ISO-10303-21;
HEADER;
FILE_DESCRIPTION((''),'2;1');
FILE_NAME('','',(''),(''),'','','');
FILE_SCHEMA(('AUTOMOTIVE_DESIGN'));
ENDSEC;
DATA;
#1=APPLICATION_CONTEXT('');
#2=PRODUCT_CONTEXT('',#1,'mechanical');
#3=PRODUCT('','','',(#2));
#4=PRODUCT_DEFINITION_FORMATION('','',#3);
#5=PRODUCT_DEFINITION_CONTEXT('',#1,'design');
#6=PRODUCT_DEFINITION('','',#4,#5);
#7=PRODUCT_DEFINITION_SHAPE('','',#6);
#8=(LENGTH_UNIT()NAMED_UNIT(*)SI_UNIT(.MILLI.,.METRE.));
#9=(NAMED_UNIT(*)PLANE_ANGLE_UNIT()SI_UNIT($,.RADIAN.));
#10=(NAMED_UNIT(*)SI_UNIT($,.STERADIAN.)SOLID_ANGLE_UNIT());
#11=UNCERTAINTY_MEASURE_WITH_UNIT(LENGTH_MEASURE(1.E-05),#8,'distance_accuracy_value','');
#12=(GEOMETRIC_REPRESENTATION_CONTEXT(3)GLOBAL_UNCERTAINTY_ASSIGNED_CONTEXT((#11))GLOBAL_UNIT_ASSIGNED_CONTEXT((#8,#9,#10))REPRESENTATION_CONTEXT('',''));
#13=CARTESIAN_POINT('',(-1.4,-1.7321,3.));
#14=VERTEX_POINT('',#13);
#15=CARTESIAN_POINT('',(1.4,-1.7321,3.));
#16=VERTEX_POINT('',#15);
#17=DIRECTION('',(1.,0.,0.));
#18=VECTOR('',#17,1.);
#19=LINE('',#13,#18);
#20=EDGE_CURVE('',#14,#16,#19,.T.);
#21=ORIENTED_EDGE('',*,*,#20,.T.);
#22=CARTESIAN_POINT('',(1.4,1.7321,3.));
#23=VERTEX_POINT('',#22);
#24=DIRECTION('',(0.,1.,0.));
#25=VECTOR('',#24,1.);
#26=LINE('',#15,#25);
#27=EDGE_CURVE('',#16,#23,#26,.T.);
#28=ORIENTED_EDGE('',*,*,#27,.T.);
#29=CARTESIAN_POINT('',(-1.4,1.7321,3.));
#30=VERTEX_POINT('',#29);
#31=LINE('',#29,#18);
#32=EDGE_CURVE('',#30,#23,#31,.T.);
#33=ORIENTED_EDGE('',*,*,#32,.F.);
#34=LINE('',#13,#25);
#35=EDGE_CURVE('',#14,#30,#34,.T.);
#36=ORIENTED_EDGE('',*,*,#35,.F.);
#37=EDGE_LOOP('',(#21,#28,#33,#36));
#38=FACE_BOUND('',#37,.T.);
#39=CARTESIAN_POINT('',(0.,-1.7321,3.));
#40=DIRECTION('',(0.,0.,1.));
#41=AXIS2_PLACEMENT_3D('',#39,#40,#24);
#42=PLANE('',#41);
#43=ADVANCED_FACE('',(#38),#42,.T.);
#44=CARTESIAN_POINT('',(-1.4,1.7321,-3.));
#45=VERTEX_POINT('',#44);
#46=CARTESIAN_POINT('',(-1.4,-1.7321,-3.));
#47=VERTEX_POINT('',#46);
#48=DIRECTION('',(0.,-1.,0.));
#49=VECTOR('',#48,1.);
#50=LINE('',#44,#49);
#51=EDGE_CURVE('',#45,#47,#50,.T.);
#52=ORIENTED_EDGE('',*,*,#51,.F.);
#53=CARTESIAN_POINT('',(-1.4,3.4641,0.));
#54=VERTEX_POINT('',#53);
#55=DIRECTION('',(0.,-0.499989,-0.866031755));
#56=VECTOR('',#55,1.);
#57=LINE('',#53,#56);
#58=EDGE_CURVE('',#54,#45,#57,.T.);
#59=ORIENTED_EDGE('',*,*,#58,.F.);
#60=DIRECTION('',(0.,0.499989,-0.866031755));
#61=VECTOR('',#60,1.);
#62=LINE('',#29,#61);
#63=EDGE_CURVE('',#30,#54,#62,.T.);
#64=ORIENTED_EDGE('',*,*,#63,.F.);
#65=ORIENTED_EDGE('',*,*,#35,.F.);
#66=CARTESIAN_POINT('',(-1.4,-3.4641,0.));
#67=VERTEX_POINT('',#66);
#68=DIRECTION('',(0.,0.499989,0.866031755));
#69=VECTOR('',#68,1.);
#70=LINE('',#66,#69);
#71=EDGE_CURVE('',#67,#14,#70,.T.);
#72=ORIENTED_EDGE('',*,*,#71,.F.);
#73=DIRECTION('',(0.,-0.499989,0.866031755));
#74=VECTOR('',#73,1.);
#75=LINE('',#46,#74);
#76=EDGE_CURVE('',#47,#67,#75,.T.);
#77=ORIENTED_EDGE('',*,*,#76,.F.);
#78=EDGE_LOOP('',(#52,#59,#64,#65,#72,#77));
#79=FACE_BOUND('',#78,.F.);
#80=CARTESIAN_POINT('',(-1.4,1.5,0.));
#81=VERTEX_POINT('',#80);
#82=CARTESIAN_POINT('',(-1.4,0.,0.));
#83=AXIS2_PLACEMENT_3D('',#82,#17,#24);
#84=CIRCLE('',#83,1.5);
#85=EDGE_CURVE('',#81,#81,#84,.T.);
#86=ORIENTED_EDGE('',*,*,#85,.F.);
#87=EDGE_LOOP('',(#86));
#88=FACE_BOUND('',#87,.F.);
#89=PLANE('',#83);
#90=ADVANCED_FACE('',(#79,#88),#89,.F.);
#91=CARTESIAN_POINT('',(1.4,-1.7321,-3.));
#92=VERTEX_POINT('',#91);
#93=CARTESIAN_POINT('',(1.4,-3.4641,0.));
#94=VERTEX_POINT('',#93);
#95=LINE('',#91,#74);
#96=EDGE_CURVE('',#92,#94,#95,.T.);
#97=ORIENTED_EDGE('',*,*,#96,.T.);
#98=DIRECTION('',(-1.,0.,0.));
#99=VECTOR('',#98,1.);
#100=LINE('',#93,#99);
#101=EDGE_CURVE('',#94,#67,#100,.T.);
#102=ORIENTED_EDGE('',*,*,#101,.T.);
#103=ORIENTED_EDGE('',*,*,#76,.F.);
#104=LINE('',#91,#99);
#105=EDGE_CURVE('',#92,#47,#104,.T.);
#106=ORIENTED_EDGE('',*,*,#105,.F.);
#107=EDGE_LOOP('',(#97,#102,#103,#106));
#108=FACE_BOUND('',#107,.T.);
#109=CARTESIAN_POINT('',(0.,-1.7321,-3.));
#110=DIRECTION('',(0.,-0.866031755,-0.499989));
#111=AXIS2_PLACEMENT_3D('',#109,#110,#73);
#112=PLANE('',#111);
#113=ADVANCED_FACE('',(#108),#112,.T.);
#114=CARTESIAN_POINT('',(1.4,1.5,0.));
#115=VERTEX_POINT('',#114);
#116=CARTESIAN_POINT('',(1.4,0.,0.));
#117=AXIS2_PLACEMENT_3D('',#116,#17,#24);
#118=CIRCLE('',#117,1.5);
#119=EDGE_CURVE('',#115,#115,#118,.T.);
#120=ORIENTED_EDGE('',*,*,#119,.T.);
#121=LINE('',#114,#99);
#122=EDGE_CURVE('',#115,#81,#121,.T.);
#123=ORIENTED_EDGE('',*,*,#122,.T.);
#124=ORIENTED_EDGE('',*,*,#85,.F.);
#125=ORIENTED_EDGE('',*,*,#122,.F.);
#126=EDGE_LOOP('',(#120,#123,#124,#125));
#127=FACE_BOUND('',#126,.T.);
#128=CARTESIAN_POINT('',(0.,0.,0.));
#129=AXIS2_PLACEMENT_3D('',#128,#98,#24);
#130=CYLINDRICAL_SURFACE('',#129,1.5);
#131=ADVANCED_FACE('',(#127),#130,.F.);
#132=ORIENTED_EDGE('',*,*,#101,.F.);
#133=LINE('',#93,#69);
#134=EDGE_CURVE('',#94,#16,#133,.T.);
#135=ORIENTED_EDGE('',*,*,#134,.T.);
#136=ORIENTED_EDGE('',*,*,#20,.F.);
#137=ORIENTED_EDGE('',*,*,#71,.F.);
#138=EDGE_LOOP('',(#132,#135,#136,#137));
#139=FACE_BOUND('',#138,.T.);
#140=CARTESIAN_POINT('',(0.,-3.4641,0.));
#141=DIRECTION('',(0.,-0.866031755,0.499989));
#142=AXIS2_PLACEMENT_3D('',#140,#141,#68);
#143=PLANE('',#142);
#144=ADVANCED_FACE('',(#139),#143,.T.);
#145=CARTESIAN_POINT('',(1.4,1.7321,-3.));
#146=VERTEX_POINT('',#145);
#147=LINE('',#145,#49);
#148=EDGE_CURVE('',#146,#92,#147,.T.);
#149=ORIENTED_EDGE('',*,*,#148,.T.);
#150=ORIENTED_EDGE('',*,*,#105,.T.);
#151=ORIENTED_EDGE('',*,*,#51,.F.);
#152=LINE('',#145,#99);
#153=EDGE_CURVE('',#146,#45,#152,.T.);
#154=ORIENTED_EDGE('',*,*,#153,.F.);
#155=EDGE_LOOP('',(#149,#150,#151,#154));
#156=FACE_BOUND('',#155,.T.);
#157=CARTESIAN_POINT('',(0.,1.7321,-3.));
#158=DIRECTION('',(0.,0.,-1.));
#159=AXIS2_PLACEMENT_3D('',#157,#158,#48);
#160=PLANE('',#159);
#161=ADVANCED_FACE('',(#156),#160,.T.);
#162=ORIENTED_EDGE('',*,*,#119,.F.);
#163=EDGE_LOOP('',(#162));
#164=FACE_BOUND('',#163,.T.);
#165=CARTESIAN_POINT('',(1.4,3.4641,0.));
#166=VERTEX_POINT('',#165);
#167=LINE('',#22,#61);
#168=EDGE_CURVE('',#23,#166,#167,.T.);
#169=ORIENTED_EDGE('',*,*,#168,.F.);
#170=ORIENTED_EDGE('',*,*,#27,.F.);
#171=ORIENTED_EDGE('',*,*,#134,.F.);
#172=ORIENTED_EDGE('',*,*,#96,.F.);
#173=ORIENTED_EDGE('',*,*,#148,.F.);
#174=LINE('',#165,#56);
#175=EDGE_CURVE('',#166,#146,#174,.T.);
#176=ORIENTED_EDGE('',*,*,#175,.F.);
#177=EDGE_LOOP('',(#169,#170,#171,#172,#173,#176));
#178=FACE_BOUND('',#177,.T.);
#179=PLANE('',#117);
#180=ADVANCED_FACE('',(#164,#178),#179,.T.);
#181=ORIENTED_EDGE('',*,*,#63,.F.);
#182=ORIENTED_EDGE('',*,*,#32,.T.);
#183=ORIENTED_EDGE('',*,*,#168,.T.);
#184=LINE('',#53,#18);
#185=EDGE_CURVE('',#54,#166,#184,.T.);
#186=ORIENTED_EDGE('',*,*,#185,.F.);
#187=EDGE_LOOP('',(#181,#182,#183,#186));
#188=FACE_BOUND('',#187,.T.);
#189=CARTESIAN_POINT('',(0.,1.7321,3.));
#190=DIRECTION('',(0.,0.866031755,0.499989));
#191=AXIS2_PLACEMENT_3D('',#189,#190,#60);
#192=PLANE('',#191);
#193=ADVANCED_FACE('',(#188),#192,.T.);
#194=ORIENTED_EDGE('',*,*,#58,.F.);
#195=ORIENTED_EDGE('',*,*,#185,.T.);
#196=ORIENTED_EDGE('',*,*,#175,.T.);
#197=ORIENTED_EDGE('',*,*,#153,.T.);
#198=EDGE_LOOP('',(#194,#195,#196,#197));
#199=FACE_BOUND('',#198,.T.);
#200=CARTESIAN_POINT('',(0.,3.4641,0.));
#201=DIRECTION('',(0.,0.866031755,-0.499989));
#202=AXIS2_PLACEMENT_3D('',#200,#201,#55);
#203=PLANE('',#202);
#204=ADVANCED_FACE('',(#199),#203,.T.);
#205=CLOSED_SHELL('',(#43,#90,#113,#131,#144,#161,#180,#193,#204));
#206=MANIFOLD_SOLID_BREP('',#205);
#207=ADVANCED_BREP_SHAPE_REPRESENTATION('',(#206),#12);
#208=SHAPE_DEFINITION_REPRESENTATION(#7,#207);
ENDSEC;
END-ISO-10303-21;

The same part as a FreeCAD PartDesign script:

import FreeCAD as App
import Part
import Sketcher

V = App.Vector
Q = App.Units.Quantity


def add_polygon(sketch, points):
    """Adds a closed chain of lines whose ends are joined by coincident constraints."""
    first, n = sketch.GeometryCount, len(points)
    for a, b in zip(points, points[1:] + points[:1]):
        sketch.addGeometry(Part.LineSegment(App.Vector(*a, 0), App.Vector(*b, 0)), False)
    for i in range(n):
        sketch.addConstraint(Sketcher.Constraint("Coincident", first + i, 2, first + (i + 1) % n, 1))

doc = App.newDocument("Part")
params = doc.addObject("Spreadsheet::Sheet", "Params")
for row, (alias, value) in enumerate([
    ("sketch1_diameter", "3 mm"),
    ("pad1_length", "2.8 mm"),
], start=1):
    params.set(f"A{row}", alias)
    params.set(f"B{row}", "=" + value)
    params.setAlias(f"B{row}", alias)

body = doc.addObject("PartDesign::Body", "Body")

sketch1 = doc.addObject("Sketcher::SketchObject", "Sketch")
body.addObject(sketch1)
sketch1.AttachmentSupport = (doc.YZ_Plane, [""])
sketch1.MapMode = "FlatFace"
add_polygon(sketch1, [(1.7, -3), (3.5, 0), (1.7, 3), (-1.7, 3), (-3.5, 0), (-1.7, -3)])
sketch1.addGeometry(Part.Circle(V(0, 0, 0), V(0, 0, 1), 1.5), False)
sketch1.addConstraint(Sketcher.Constraint("Horizontal", 2))
sketch1.addConstraint(Sketcher.Constraint("Horizontal", 5))
sketch1.addConstraint(Sketcher.Constraint("Coincident", 6, 3, -1, 1))
sketch1.addConstraint(Sketcher.Constraint("Symmetric", 0, 2, 3, 2, -1, 1))
sketch1.addConstraint(Sketcher.Constraint("Symmetric", 1, 2, 4, 2, -1, 1))
sketch1.addConstraint(Sketcher.Constraint("PointOnObject", 0, 2, -1))
sketch1.addConstraint(Sketcher.Constraint("Parallel", 0, 3))
sketch1.addConstraint(Sketcher.Constraint("Vertical", 2, 2, 4, 2))
sketch1.addConstraint(Sketcher.Constraint("Diameter", 6, Q("3 mm")))
sketch1.addConstraint(Sketcher.Constraint("DistanceY", -1, 1, 1, 2, Q("3 mm")))
sketch1.addConstraint(Sketcher.Constraint("Angle", 0, Q("60.0007 deg")))
sketch1.addConstraint(Sketcher.Constraint("DistanceX", 2, 2, 2, 1, Q("3.4642 mm")))
sketch1.setExpression("Constraints[14]", "Params.sketch1_diameter")
pad1 = doc.addObject("PartDesign::Pad", "Pad")
body.addObject(pad1)
pad1.Profile = sketch1
pad1.setExpression("Length", "Params.pad1_length")
pad1.Midplane = True

doc.recompute()
